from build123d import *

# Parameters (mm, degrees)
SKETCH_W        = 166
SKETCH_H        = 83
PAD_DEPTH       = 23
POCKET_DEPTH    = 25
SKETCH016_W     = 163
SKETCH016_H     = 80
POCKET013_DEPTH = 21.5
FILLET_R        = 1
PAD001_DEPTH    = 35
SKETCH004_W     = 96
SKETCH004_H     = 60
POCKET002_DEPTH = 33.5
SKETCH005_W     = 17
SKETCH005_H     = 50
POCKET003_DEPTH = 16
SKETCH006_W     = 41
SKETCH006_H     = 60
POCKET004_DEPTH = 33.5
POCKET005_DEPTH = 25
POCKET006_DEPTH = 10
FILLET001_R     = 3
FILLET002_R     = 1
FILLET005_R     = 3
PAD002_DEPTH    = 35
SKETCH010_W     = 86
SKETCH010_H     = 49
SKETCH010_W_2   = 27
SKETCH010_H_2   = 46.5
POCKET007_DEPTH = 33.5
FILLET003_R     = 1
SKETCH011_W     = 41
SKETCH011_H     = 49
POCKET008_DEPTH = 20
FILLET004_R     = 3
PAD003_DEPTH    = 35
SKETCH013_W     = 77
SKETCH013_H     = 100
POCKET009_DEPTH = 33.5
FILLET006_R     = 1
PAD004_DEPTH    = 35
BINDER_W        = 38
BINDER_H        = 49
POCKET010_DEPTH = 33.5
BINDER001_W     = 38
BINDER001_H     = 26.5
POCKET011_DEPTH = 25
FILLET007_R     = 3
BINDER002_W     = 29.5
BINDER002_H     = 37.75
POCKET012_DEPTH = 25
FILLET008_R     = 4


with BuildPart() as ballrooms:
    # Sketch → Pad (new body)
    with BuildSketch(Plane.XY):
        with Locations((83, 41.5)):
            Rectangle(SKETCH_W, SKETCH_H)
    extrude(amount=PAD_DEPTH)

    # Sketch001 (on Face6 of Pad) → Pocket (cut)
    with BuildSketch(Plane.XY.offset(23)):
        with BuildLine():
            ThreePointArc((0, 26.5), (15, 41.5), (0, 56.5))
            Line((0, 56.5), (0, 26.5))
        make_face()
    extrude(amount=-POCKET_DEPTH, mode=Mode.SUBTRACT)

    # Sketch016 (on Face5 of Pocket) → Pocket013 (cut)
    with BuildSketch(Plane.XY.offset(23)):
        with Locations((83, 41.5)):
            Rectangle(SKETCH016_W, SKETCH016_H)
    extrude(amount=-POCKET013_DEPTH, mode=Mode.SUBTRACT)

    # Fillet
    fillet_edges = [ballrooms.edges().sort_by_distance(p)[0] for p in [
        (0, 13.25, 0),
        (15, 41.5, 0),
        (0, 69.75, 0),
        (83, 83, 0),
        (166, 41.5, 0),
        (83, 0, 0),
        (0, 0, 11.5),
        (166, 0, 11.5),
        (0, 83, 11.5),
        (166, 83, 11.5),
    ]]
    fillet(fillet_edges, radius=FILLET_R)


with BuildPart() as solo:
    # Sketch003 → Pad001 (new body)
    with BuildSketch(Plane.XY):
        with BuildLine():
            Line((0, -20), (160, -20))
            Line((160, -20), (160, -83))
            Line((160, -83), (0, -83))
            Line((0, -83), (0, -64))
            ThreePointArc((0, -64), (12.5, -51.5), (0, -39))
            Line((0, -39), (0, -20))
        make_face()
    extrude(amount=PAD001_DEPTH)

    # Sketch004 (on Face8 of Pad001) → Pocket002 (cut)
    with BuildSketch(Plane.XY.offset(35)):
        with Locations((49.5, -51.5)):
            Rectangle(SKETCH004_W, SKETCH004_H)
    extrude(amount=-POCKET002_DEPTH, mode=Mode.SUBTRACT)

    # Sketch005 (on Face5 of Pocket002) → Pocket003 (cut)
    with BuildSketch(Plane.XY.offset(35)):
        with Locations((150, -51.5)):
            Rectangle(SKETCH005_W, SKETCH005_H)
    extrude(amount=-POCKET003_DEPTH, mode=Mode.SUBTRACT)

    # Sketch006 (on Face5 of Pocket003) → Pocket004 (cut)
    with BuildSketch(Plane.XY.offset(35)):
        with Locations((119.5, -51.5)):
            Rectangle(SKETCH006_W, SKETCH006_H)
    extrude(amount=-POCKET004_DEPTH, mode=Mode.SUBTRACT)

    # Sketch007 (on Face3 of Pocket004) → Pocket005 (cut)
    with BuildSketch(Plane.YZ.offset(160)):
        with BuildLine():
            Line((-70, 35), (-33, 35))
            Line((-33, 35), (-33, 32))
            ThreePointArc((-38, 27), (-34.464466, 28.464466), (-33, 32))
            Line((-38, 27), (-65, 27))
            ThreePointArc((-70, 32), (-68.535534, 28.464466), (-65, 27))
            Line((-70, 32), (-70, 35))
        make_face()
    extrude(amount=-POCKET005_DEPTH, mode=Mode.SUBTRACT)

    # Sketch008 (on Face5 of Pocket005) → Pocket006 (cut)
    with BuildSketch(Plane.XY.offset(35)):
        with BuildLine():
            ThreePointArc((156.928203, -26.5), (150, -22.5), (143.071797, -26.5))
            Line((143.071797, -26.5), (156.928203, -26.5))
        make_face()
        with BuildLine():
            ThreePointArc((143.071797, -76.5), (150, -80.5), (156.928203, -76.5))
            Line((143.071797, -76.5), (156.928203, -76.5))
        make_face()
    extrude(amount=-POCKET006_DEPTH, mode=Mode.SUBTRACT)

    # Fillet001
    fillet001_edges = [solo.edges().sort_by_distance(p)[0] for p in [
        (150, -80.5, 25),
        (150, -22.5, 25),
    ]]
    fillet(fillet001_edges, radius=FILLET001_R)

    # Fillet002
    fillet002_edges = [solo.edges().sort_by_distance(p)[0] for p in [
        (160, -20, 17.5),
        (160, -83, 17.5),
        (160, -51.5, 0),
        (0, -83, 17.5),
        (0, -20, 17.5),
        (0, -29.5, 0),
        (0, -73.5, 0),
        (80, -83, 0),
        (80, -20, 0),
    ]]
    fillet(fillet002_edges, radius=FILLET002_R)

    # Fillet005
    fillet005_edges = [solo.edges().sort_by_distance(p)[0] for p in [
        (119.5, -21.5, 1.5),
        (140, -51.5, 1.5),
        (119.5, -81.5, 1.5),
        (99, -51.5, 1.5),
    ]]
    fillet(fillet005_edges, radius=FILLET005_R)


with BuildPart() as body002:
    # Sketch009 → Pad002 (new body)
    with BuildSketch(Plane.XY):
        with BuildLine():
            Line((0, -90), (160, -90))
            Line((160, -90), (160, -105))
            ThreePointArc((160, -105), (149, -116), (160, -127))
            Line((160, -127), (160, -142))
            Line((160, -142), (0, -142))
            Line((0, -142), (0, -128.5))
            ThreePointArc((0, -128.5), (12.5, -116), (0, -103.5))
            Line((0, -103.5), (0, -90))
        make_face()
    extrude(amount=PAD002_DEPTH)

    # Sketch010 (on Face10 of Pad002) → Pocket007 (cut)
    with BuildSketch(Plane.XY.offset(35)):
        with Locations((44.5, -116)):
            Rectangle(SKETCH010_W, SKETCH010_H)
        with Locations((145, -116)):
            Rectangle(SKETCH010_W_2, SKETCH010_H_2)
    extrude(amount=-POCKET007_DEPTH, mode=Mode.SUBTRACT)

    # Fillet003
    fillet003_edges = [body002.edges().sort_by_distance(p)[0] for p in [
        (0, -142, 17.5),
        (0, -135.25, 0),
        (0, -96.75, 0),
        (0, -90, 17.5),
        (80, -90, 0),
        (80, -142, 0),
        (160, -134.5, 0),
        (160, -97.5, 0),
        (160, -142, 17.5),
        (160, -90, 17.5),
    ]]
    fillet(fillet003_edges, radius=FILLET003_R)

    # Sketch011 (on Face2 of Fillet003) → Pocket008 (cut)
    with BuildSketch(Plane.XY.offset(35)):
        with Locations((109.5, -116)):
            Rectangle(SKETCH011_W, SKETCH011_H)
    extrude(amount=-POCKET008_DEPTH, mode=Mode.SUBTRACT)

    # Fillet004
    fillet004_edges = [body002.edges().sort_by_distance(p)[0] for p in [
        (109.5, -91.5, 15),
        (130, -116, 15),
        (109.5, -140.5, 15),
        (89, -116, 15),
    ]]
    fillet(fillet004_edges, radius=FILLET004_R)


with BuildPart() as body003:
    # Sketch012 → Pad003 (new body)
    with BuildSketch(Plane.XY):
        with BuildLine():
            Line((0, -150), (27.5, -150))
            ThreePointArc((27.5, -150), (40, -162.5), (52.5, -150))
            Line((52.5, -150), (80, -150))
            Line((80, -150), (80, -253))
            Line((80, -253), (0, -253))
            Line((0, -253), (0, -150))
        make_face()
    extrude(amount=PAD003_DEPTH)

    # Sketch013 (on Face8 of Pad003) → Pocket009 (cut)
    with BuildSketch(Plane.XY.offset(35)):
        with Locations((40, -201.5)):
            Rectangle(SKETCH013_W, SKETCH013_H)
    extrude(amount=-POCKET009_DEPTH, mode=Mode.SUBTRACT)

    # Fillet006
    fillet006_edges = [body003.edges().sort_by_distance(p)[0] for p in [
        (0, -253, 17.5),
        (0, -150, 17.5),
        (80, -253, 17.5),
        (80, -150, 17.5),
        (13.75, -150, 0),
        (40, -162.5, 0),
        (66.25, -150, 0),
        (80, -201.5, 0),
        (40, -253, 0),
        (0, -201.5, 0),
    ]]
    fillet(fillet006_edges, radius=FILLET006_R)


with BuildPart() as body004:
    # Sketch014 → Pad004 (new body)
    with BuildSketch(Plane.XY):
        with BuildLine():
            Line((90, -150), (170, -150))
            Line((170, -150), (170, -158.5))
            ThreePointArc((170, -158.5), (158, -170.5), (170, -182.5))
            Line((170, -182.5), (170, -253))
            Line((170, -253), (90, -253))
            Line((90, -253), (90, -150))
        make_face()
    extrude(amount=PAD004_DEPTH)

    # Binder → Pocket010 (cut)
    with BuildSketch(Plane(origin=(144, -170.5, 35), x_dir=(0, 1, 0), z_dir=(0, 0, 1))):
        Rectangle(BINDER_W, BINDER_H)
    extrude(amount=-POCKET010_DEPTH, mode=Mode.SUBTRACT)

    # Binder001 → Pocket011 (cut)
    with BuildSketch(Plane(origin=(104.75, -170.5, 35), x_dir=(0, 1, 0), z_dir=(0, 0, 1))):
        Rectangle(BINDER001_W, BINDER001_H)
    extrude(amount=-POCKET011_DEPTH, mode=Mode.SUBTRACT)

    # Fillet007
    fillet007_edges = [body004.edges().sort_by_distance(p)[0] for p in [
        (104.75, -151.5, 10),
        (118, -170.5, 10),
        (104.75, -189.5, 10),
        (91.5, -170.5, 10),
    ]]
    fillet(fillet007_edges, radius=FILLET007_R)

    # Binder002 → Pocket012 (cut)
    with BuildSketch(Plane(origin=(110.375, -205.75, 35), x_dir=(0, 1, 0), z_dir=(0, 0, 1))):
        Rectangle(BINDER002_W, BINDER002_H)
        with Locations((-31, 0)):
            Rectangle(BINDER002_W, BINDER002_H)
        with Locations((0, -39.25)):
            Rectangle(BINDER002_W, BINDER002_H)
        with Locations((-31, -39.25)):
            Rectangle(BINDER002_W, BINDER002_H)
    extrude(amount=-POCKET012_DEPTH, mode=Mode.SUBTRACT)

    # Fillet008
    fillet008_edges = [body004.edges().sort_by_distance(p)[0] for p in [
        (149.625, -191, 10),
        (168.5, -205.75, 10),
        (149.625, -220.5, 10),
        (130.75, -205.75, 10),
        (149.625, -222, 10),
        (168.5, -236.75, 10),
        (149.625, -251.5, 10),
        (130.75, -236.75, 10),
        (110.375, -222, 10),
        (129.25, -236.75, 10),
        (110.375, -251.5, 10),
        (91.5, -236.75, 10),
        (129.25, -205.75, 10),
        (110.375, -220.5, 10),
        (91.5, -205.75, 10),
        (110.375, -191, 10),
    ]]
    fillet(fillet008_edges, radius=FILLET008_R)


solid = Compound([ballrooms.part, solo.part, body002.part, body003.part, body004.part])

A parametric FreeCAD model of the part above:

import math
import FreeCAD as App
import Part
import Sketcher


def edges_at(feature, points):
    """Names of the edges that pass closest to the given points."""
    edges = feature.Shape.Edges
    near = lambda p: min(range(len(edges)), key=lambda i: edges[i].distToShape(Part.Vertex(*p))[0])
    return sorted({f"Edge{near(p) + 1}" for p in points})


def add_polygon(sketch, points):
    """Adds a closed chain of lines whose ends are joined by coincident constraints."""
    first, n = sketch.GeometryCount, len(points)
    for a, b in zip(points, points[1:] + points[:1]):
        sketch.addGeometry(Part.LineSegment(App.Vector(*a, 0), App.Vector(*b, 0)), False)
    for i in range(n):
        sketch.addConstraint(Sketcher.Constraint("Coincident", first + i, 2, first + (i + 1) % n, 1))

doc = App.newDocument("Part")
body = doc.addObject("PartDesign::Body", "Body")

sketch1 = doc.addObject("Sketcher::SketchObject", "Sketch")
body.addObject(sketch1)
sketch1.AttachmentSupport = (doc.XY_Plane, [""])
sketch1.MapMode = "FlatFace"
add_polygon(sketch1, [(0, 83), (0, 0), (166, 0), (166, 83)])
sketch1.addConstraint([
    Sketcher.Constraint("Vertical", 0),
    Sketcher.Constraint("Horizontal", 1),
    Sketcher.Constraint("Vertical", 2),
    Sketcher.Constraint("Horizontal", 3),
    Sketcher.Constraint("Coincident", 0, 2, -1, 1),
    Sketcher.Constraint("DistanceX", 1, 1, 1, 2, 166.0),
    Sketcher.Constraint("DistanceY", 0, 2, 0, 1, 83.0),
])
pad1 = doc.addObject("PartDesign::Pad", "Pad")
body.addObject(pad1)
pad1.Profile = sketch1
pad1.Length = 23

sketch2 = doc.addObject("Sketcher::SketchObject", "Sketch001")
body.addObject(sketch2)
sketch2.AttachmentSupport = (doc.XY_Plane, [""])
sketch2.MapMode = "FlatFace"
sketch2.AttachmentOffset = App.Placement(App.Vector(0, 0, 23), App.Rotation())
sketch2.addGeometry([
    Part.ArcOfCircle(Part.Circle(App.Vector(0, 41.5, 0), App.Vector(0, 0, 1), 15), math.radians(-90), math.radians(90)),
    Part.LineSegment(App.Vector(0, 56.5, 0), App.Vector(0, 26.5, 0)),
], False)
sketch2.addConstraint([
    Sketcher.Constraint("Coincident", 0, 1, 1, 2),
    Sketcher.Constraint("Coincident", 1, 1, 0, 2),
    Sketcher.Constraint("Vertical", 1),
    Sketcher.Constraint("PointOnObject", 0, 3, -2),
    Sketcher.Constraint("PointOnObject", 0, 1, -2),
    Sketcher.Constraint("Radius", 0, 15.0),
    Sketcher.Constraint("DistanceY", -1, 1, 0, 3, 41.5),
])
pocket1 = doc.addObject("PartDesign::Pocket", "Pocket")
body.addObject(pocket1)
pocket1.Profile = sketch2
pocket1.Length = 25

sketch3 = doc.addObject("Sketcher::SketchObject", "Sketch002")
body.addObject(sketch3)
sketch3.AttachmentSupport = (doc.XY_Plane, [""])
sketch3.MapMode = "FlatFace"
sketch3.AttachmentOffset = App.Placement(App.Vector(0, 0, 23), App.Rotation())
add_polygon(sketch3, [(1.5, 81.5), (1.5, 1.5), (164.5, 1.5), (164.5, 81.5)])
sketch3.addConstraint([
    Sketcher.Constraint("Vertical", 0),
    Sketcher.Constraint("Horizontal", 1),
    Sketcher.Constraint("Vertical", 2),
    Sketcher.Constraint("Horizontal", 3),
    Sketcher.Constraint("DistanceX", 1, 1, 1, 2, 163.0),
    Sketcher.Constraint("DistanceY", 0, 2, 0, 1, 80.0),
    Sketcher.Constraint("DistanceX", -1, 1, 0, 2, 1.5),
    Sketcher.Constraint("DistanceY", -1, 1, 0, 2, 1.5),
])
pocket2 = doc.addObject("PartDesign::Pocket", "Pocket001")
body.addObject(pocket2)
pocket2.Profile = sketch3
pocket2.Length = 21.5
doc.recompute()

fillet = doc.addObject("PartDesign::Fillet", "Fillet")
body.addObject(fillet)
fillet.Base = (pocket2, edges_at(pocket2, [
    (0, 13.25, 0),
    (15, 41.5, 0),
    (0, 69.75, 0),
    (83, 83, 0),
    (166, 41.5, 0),
    (83, 0, 0),
    (0, 0, 11.5),
    (166, 0, 11.5),
    (0, 83, 11.5),
    (166, 83, 11.5),
]))
fillet.Radius = 1
body2 = doc.addObject("PartDesign::Body", "Body001")

sketch4 = doc.addObject("Sketcher::SketchObject", "Sketch003")
body2.addObject(sketch4)
sketch4.AttachmentSupport = (doc.getObject("XY_Plane001"), [""])
sketch4.MapMode = "FlatFace"
sketch4.addGeometry([
    Part.LineSegment(App.Vector(160, -20, 0), App.Vector(0, -20, 0)),
    Part.LineSegment(App.Vector(0, -20, 0), App.Vector(0, -39, 0)),
    Part.ArcOfCircle(Part.Circle(App.Vector(0, -51.5, 0), App.Vector(0, 0, 1), 12.5), math.radians(-90), math.radians(90)),
    Part.LineSegment(App.Vector(0, -64, 0), App.Vector(0, -83, 0)),
    Part.LineSegment(App.Vector(0, -83, 0), App.Vector(160, -83, 0)),
    Part.LineSegment(App.Vector(160, -83, 0), App.Vector(160, -20, 0)),
], False)
sketch4.addConstraint([
    Sketcher.Constraint("Coincident", 0, 2, 1, 1),
    Sketcher.Constraint("Coincident", 1, 2, 2, 2),
    Sketcher.Constraint("Coincident", 2, 1, 3, 1),
    Sketcher.Constraint("Coincident", 3, 2, 4, 1),
    Sketcher.Constraint("Coincident", 4, 2, 5, 1),
    Sketcher.Constraint("Coincident", 5, 2, 0, 1),
    Sketcher.Constraint("Horizontal", 0),
    Sketcher.Constraint("Vertical", 1),
    Sketcher.Constraint("Vertical", 3),
    Sketcher.Constraint("Horizontal", 4),
    Sketcher.Constraint("Vertical", 5),
    Sketcher.Constraint("PointOnObject", 2, 3, -2),
    Sketcher.Constraint("PointOnObject", 0, 2, -2),
    Sketcher.Constraint("PointOnObject", 2, 1, -2),
    Sketcher.Constraint("Equal", 1, 3),
    Sketcher.Constraint("Radius", 2, 12.5),
    Sketcher.Constraint("DistanceX", 0, 2, 0, 1, 160.0),
    Sketcher.Constraint("DistanceY", 1, 2, 1, 1, 19.0),
    Sketcher.Constraint("DistanceY", 0, 2, -1, 1, 20.0),
])
pad2 = doc.addObject("PartDesign::Pad", "Pad001")
body2.addObject(pad2)
pad2.Profile = sketch4
pad2.Length = 35

sketch5 = doc.addObject("Sketcher::SketchObject", "Sketch004")
body2.addObject(sketch5)
sketch5.AttachmentSupport = (doc.getObject("XY_Plane001"), [""])
sketch5.MapMode = "FlatFace"
sketch5.AttachmentOffset = App.Placement(App.Vector(0, 0, 35), App.Rotation())
add_polygon(sketch5, [(1.5, -21.5), (1.5, -81.5), (97.5, -81.5), (97.5, -21.5)])
sketch5.addConstraint([
    Sketcher.Constraint("Vertical", 0),
    Sketcher.Constraint("Horizontal", 1),
    Sketcher.Constraint("Vertical", 2),
    Sketcher.Constraint("Horizontal", 3),
    Sketcher.Constraint("DistanceX", 1, 1, 1, 2, 96.0),
    Sketcher.Constraint("DistanceY", 0, 2, 0, 1, 60.0),
    Sketcher.Constraint("DistanceX", -1, 1, 0, 2, 1.5),
    Sketcher.Constraint("DistanceY", 0, 2, -1, 1, 81.5),
])
pocket3 = doc.addObject("PartDesign::Pocket", "Pocket002")
body2.addObject(pocket3)
pocket3.Profile = sketch5
pocket3.Length = 33.5

sketch6 = doc.addObject("Sketcher::SketchObject", "Sketch005")
body2.addObject(sketch6)
sketch6.AttachmentSupport = (doc.getObject("XY_Plane001"), [""])
sketch6.MapMode = "FlatFace"
sketch6.AttachmentOffset = App.Placement(App.Vector(0, 0, 35), App.Rotation())
add_polygon(sketch6, [(141.5, -26.5), (141.5, -76.5), (158.5, -76.5), (158.5, -26.5)])
sketch6.addConstraint([
    Sketcher.Constraint("Vertical", 0),
    Sketcher.Constraint("Horizontal", 1),
    Sketcher.Constraint("Vertical", 2),
    Sketcher.Constraint("Horizontal", 3),
    Sketcher.Constraint("DistanceX", 1, 1, 1, 2, 17.0),
    Sketcher.Constraint("DistanceY", 0, 2, 0, 1, 50.0),
    Sketcher.Constraint("DistanceX", -1, 1, 0, 2, 141.5),
    Sketcher.Constraint("DistanceY", 0, 2, -1, 1, 76.5),
])
pocket4 = doc.addObject("PartDesign::Pocket", "Pocket003")
body2.addObject(pocket4)
pocket4.Profile = sketch6
pocket4.Length = 16

sketch7 = doc.addObject("Sketcher::SketchObject", "Sketch006")
body2.addObject(sketch7)
sketch7.AttachmentSupport = (doc.getObject("XY_Plane001"), [""])
sketch7.MapMode = "FlatFace"
sketch7.AttachmentOffset = App.Placement(App.Vector(0, 0, 35), App.Rotation())
add_polygon(sketch7, [(99, -21.5), (99, -81.5), (140, -81.5), (140, -21.5)])
sketch7.addConstraint([
    Sketcher.Constraint("Vertical", 0),
    Sketcher.Constraint("Horizontal", 1),
    Sketcher.Constraint("Vertical", 2),
    Sketcher.Constraint("Horizontal", 3),
    Sketcher.Constraint("DistanceX", 1, 1, 1, 2, 41.0),
    Sketcher.Constraint("DistanceY", 0, 2, 0, 1, 60.0),
    Sketcher.Constraint("DistanceX", -1, 1, 0, 2, 99.0),
    Sketcher.Constraint("DistanceY", 0, 2, -1, 1, 81.5),
])
pocket5 = doc.addObject("PartDesign::Pocket", "Pocket004")
body2.addObject(pocket5)
pocket5.Profile = sketch7
pocket5.Length = 33.5

sketch8 = doc.addObject("Sketcher::SketchObject", "Sketch007")
body2.addObject(sketch8)
sketch8.AttachmentSupport = (doc.getObject("YZ_Plane001"), [""])
sketch8.MapMode = "FlatFace"
sketch8.AttachmentOffset = App.Placement(App.Vector(0, 0, 160), App.Rotation())
sketch8.addGeometry([
    Part.LineSegment(App.Vector(-33, 35, 0), App.Vector(-70, 35, 0)),
    Part.LineSegment(App.Vector(-70, 35, 0), App.Vector(-70, 32, 0)),
    Part.ArcOfCircle(Part.Circle(App.Vector(-65, 32, 0), App.Vector(0, 0, 1), 5), math.radians(179.999996), math.radians(270.000004)),
    Part.LineSegment(App.Vector(-65, 27, 0), App.Vector(-38, 27, 0)),
    Part.ArcOfCircle(Part.Circle(App.Vector(-38, 32, 0), App.Vector(0, 0, 1), 5), math.radians(-90.000004), math.radians(0.000004)),
    Part.LineSegment(App.Vector(-33, 32, 0), App.Vector(-33, 35, 0)),
], False)
sketch8.addConstraint([
    Sketcher.Constraint("Coincident", 0, 2, 1, 1),
    Sketcher.Constraint("Tangent", 1, 2, 2, 1),
    Sketcher.Constraint("Tangent", 2, 2, 3, 1),
    Sketcher.Constraint("Tangent", 3, 2, 4, 1),
    Sketcher.Constraint("Tangent", 4, 2, 5, 1),
    Sketcher.Constraint("Coincident", 5, 2, 0, 1),
    Sketcher.Constraint("Horizontal", 0),
    Sketcher.Constraint("Vertical", 1),
    Sketcher.Constraint("Horizontal", 3),
    Sketcher.Constraint("Vertical", 5),
    Sketcher.Constraint("Equal", 2, 4),
    Sketcher.Constraint("Radius", 2, 5.0),
    Sketcher.Constraint("DistanceX", 0, 2, 0, 1, 37.0),
    Sketcher.Constraint("DistanceY", 1, 2, 1, 1, 3.0),
    Sketcher.Constraint("DistanceX", 2, 3, -1, 1, 65.0),
    Sketcher.Constraint("DistanceY", -1, 1, 2, 3, 32.0),
])
pocket6 = doc.addObject("PartDesign::Pocket", "Pocket005")
body2.addObject(pocket6)
pocket6.Profile = sketch8
pocket6.Length = 25

sketch9 = doc.addObject("Sketcher::SketchObject", "Sketch008")
body2.addObject(sketch9)
sketch9.AttachmentSupport = (doc.getObject("XY_Plane001"), [""])
sketch9.MapMode = "FlatFace"
sketch9.AttachmentOffset = App.Placement(App.Vector(0, 0, 35), App.Rotation())
sketch9.addGeometry([
    Part.ArcOfCircle(Part.Circle(App.Vector(150, -30.5, 0), App.Vector(0, 0, 1), 8), math.radians(29.999998), math.radians(150.000002)),
    Part.LineSegment(App.Vector(143.071797, -26.5, 0), App.Vector(156.928203, -26.5, 0)),
    Part.ArcOfCircle(Part.Circle(App.Vector(150, -72.5, 0), App.Vector(0, 0, 1), 8), math.radians(-150.000002), math.radians(-29.999998)),
    Part.LineSegment(App.Vector(156.928203, -76.5, 0), App.Vector(143.071797, -76.5, 0)),
], False)
sketch9.addConstraint([
    Sketcher.Constraint("Coincident", 0, 1, 1, 2),
    Sketcher.Constraint("Coincident", 1, 1, 0, 2),
    Sketcher.Constraint("Coincident", 2, 1, 3, 2),
    Sketcher.Constraint("Coincident", 3, 1, 2, 2),
    Sketcher.Constraint("Horizontal", 1),
    Sketcher.Constraint("Horizontal", 3),
    Sketcher.Constraint("Equal", 0, 2),
    Sketcher.Constraint("Vertical", 0, 3, 2, 3),
    Sketcher.Constraint("Vertical", 1, 1, 2, 1),
    Sketcher.Constraint("Radius", 0, 8.0),
    Sketcher.Constraint("DistanceX", -1, 1, 0, 3, 150.0),
    Sketcher.Constraint("DistanceY", 2, 3, 0, 3, 42.000001),
    Sketcher.Constraint("DistanceY", 0, 3, 0, 1, 4.0),
    Sketcher.Constraint("DistanceY", 0, 3, -1, 1, 30.5),
])
pocket7 = doc.addObject("PartDesign::Pocket", "Pocket006")
body2.addObject(pocket7)
pocket7.Profile = sketch9
pocket7.Length = 10
doc.recompute()

fillet2 = doc.addObject("PartDesign::Fillet", "Fillet001")
body2.addObject(fillet2)
fillet2.Base = (pocket7, edges_at(pocket7, [(150, -80.5, 25), (150, -22.5, 25)]))
fillet2.Radius = 3
doc.recompute()

fillet3 = doc.addObject("PartDesign::Fillet", "Fillet002")
body2.addObject(fillet3)
fillet3.Base = (fillet2, edges_at(fillet2, [
    (160, -20, 17.5),
    (160, -83, 17.5),
    (160, -51.5, 0),
    (0, -83, 17.5),
    (0, -20, 17.5),
    (0, -29.5, 0),
    (0, -73.5, 0),
    (80, -83, 0),
    (80, -20, 0),
]))
fillet3.Radius = 1
doc.recompute()

fillet4 = doc.addObject("PartDesign::Fillet", "Fillet003")
body2.addObject(fillet4)
fillet4.Base = (fillet3, edges_at(fillet3, [
    (119.5, -21.5, 1.5),
    (140, -51.5, 1.5),
    (119.5, -81.5, 1.5),
    (99, -51.5, 1.5),
]))
fillet4.Radius = 3
body3 = doc.addObject("PartDesign::Body", "Body002")

sketch10 = doc.addObject("Sketcher::SketchObject", "Sketch009")
body3.addObject(sketch10)
sketch10.AttachmentSupport = (doc.getObject("XY_Plane002"), [""])
sketch10.MapMode = "FlatFace"
sketch10.addGeometry([
    Part.LineSegment(App.Vector(160, -90, 0), App.Vector(0, -90, 0)),
    Part.LineSegment(App.Vector(0, -90, 0), App.Vector(0, -103.5, 0)),
    Part.ArcOfCircle(Part.Circle(App.Vector(0, -116, 0), App.Vector(0, 0, 1), 12.5), math.radians(-90), math.radians(90)),
    Part.LineSegment(App.Vector(0, -128.5, 0), App.Vector(0, -142, 0)),
    Part.LineSegment(App.Vector(0, -142, 0), App.Vector(160, -142, 0)),
    Part.LineSegment(App.Vector(160, -142, 0), App.Vector(160, -127, 0)),
    Part.ArcOfCircle(Part.Circle(App.Vector(160, -116, 0), App.Vector(0, 0, 1), 11), math.radians(90), math.radians(270)),
    Part.LineSegment(App.Vector(160, -105, 0), App.Vector(160, -90, 0)),
], False)
sketch10.addConstraint([
    Sketcher.Constraint("Coincident", 0, 2, 1, 1),
    Sketcher.Constraint("Coincident", 1, 2, 2, 2),
    Sketcher.Constraint("Coincident", 2, 1, 3, 1),
    Sketcher.Constraint("Coincident", 3, 2, 4, 1),
    Sketcher.Constraint("Coincident", 4, 2, 5, 1),
    Sketcher.Constraint("Coincident", 5, 2, 6, 2),
    Sketcher.Constraint("Coincident", 6, 1, 7, 1),
    Sketcher.Constraint("Coincident", 7, 2, 0, 1),
    Sketcher.Constraint("Horizontal", 0),
    Sketcher.Constraint("Vertical", 1),
    Sketcher.Constraint("Vertical", 3),
    Sketcher.Constraint("Horizontal", 4),
    Sketcher.Constraint("Vertical", 5),
    Sketcher.Constraint("Vertical", 7),
    Sketcher.Constraint("PointOnObject", 2, 3, -2),
    Sketcher.Constraint("PointOnObject", 0, 2, -2),
    Sketcher.Constraint("PointOnObject", 2, 1, -2),
    Sketcher.Constraint("Horizontal", 2, 3, 6, 3),
    Sketcher.Constraint("Vertical", 6, 3, 4, 2),
    Sketcher.Constraint("Vertical", 5, 2, 6, 1),
    Sketcher.Constraint("Equal", 1, 3),
    Sketcher.Constraint("Radius", 6, 11.0),
    Sketcher.Constraint("Radius", 2, 12.5),
    Sketcher.Constraint("DistanceX", 0, 2, 0, 1, 160.0),
    Sketcher.Constraint("DistanceY", 5, 1, 5, 2, 15.0),
    Sketcher.Constraint("DistanceY", 2, 3, -1, 1, 116.0),
])
pad3 = doc.addObject("PartDesign::Pad", "Pad002")
body3.addObject(pad3)
pad3.Profile = sketch10
pad3.Length = 35

sketch11 = doc.addObject("Sketcher::SketchObject", "Sketch010")
body3.addObject(sketch11)
sketch11.AttachmentSupport = (doc.getObject("XY_Plane002"), [""])
sketch11.MapMode = "FlatFace"
sketch11.AttachmentOffset = App.Placement(App.Vector(0, 0, 35), App.Rotation())
add_polygon(sketch11, [(1.5, -91.5), (1.5, -140.5), (87.5, -140.5), (87.5, -91.5)])
add_polygon(sketch11, [(131.5, -92.75), (131.5, -139.25), (158.5, -139.25), (158.5, -92.75)])
sketch11.addConstraint([
    Sketcher.Constraint("Vertical", 0),
    Sketcher.Constraint("Horizontal", 1),
    Sketcher.Constraint("Vertical", 2),
    Sketcher.Constraint("Horizontal", 3),
    Sketcher.Constraint("Vertical", 4),
    Sketcher.Constraint("Horizontal", 5),
    Sketcher.Constraint("Vertical", 6),
    Sketcher.Constraint("Horizontal", 7),
    Sketcher.Constraint("DistanceX", 1, 1, 1, 2, 86.0),
    Sketcher.Constraint("DistanceX", 5, 1, 5, 2, 27.0),
    Sketcher.Constraint("DistanceY", 0, 2, 0, 1, 49.0),
    Sketcher.Constraint("DistanceY", 4, 2, 4, 1, 46.5),
    Sketcher.Constraint("DistanceX", 1, 2, 4, 2, 44.0),
    Sketcher.Constraint("DistanceX", -1, 1, 0, 2, 1.5),
    Sketcher.Constraint("DistanceY", 0, 2, -1, 1, 140.5),
    Sketcher.Constraint("DistanceY", 4, 2, -1, 1, 139.25),
])
pocket8 = doc.addObject("PartDesign::Pocket", "Pocket007")
body3.addObject(pocket8)
pocket8.Profile = sketch11
pocket8.Length = 33.5
doc.recompute()

fillet5 = doc.addObject("PartDesign::Fillet", "Fillet004")
body3.addObject(fillet5)
fillet5.Base = (pocket8, edges_at(pocket8, [
    (0, -142, 17.5),
    (0, -135.25, 0),
    (0, -96.75, 0),
    (0, -90, 17.5),
    (80, -90, 0),
    (80, -142, 0),
    (160, -134.5, 0),
    (160, -97.5, 0),
    (160, -142, 17.5),
    (160, -90, 17.5),
]))
fillet5.Radius = 1

sketch12 = doc.addObject("Sketcher::SketchObject", "Sketch011")
body3.addObject(sketch12)
sketch12.AttachmentSupport = (doc.getObject("XY_Plane002"), [""])
sketch12.MapMode = "FlatFace"
sketch12.AttachmentOffset = App.Placement(App.Vector(0, 0, 35), App.Rotation())
add_polygon(sketch12, [(89, -91.5), (89, -140.5), (130, -140.5), (130, -91.5)])
sketch12.addConstraint([
    Sketcher.Constraint("Vertical", 0),
    Sketcher.Constraint("Horizontal", 1),
    Sketcher.Constraint("Vertical", 2),
    Sketcher.Constraint("Horizontal", 3),
    Sketcher.Constraint("DistanceX", 1, 1, 1, 2, 41.0),
    Sketcher.Constraint("DistanceY", 0, 2, 0, 1, 49.0),
    Sketcher.Constraint("DistanceX", -1, 1, 0, 2, 89.0),
    Sketcher.Constraint("DistanceY", 0, 2, -1, 1, 140.5),
])
pocket9 = doc.addObject("PartDesign::Pocket", "Pocket008")
body3.addObject(pocket9)
pocket9.Profile = sketch12
pocket9.Length = 20
doc.recompute()

fillet6 = doc.addObject("PartDesign::Fillet", "Fillet005")
body3.addObject(fillet6)
fillet6.Base = (pocket9, edges_at(pocket9, [
    (109.5, -91.5, 15),
    (130, -116, 15),
    (109.5, -140.5, 15),
    (89, -116, 15),
]))
fillet6.Radius = 3
body4 = doc.addObject("PartDesign::Body", "Body003")

sketch13 = doc.addObject("Sketcher::SketchObject", "Sketch012")
body4.addObject(sketch13)
sketch13.AttachmentSupport = (doc.getObject("XY_Plane003"), [""])
sketch13.MapMode = "FlatFace"
sketch13.addGeometry([
    Part.LineSegment(App.Vector(27.5, -150, 0), App.Vector(0, -150, 0)),
    Part.LineSegment(App.Vector(0, -150, 0), App.Vector(0, -253, 0)),
    Part.LineSegment(App.Vector(0, -253, 0), App.Vector(80, -253, 0)),
    Part.LineSegment(App.Vector(80, -253, 0), App.Vector(80, -150, 0)),
    Part.LineSegment(App.Vector(80, -150, 0), App.Vector(52.5, -150, 0)),
    Part.ArcOfCircle(Part.Circle(App.Vector(40, -150, 0), App.Vector(0, 0, 1), 12.5), math.radians(180), math.radians(360)),
], False)
sketch13.addConstraint([
    Sketcher.Constraint("Coincident", 0, 2, 1, 1),
    Sketcher.Constraint("Coincident", 1, 2, 2, 1),
    Sketcher.Constraint("Coincident", 2, 2, 3, 1),
    Sketcher.Constraint("Coincident", 3, 2, 4, 1),
    Sketcher.Constraint("Coincident", 4, 2, 5, 2),
    Sketcher.Constraint("Coincident", 5, 1, 0, 1),
    Sketcher.Constraint("Horizontal", 0),
    Sketcher.Constraint("Vertical", 1),
    Sketcher.Constraint("Horizontal", 2),
    Sketcher.Constraint("Vertical", 3),
    Sketcher.Constraint("Horizontal", 4),
    Sketcher.Constraint("PointOnObject", 0, 2, -2),
    Sketcher.Constraint("Horizontal", 5, 3, 0, 2),
    Sketcher.Constraint("Horizontal", 0, 2, 3, 2),
    Sketcher.Constraint("Equal", 0, 4),
    Sketcher.Constraint("Radius", 5, 12.5),
    Sketcher.Constraint("DistanceX", 2, 1, 2, 2, 80.0),
    Sketcher.Constraint("DistanceY", 1, 2, 1, 1, 103.0),
    Sketcher.Constraint("DistanceY", 5, 3, -1, 1, 150.0),
])
pad4 = doc.addObject("PartDesign::Pad", "Pad003")
body4.addObject(pad4)
pad4.Profile = sketch13
pad4.Length = 35

sketch14 = doc.addObject("Sketcher::SketchObject", "Sketch013")
body4.addObject(sketch14)
sketch14.AttachmentSupport = (doc.getObject("XY_Plane003"), [""])
sketch14.MapMode = "FlatFace"
sketch14.AttachmentOffset = App.Placement(App.Vector(0, 0, 35), App.Rotation())
add_polygon(sketch14, [(1.5, -151.5), (1.5, -251.5), (78.5, -251.5), (78.5, -151.5)])
sketch14.addConstraint([
    Sketcher.Constraint("Vertical", 0),
    Sketcher.Constraint("Horizontal", 1),
    Sketcher.Constraint("Vertical", 2),
    Sketcher.Constraint("Horizontal", 3),
    Sketcher.Constraint("DistanceX", 1, 1, 1, 2, 77.0),
    Sketcher.Constraint("DistanceY", 0, 2, 0, 1, 100.0),
    Sketcher.Constraint("DistanceX", -1, 1, 0, 2, 1.5),
    Sketcher.Constraint("DistanceY", 0, 2, -1, 1, 251.5),
])
pocket10 = doc.addObject("PartDesign::Pocket", "Pocket009")
body4.addObject(pocket10)
pocket10.Profile = sketch14
pocket10.Length = 33.5
doc.recompute()

fillet7 = doc.addObject("PartDesign::Fillet", "Fillet006")
body4.addObject(fillet7)
fillet7.Base = (pocket10, edges_at(pocket10, [
    (0, -253, 17.5),
    (0, -150, 17.5),
    (80, -253, 17.5),
    (80, -150, 17.5),
    (13.75, -150, 0),
    (40, -162.5, 0),
    (66.25, -150, 0),
    (80, -201.5, 0),
    (40, -253, 0),
    (0, -201.5, 0),
]))
fillet7.Radius = 1
body5 = doc.addObject("PartDesign::Body", "Body004")

sketch15 = doc.addObject("Sketcher::SketchObject", "Sketch014")
body5.addObject(sketch15)
sketch15.AttachmentSupport = (doc.getObject("XY_Plane004"), [""])
sketch15.MapMode = "FlatFace"
sketch15.addGeometry([
    Part.LineSegment(App.Vector(170, -150, 0), App.Vector(90, -150, 0)),
    Part.LineSegment(App.Vector(90, -150, 0), App.Vector(90, -253, 0)),
    Part.LineSegment(App.Vector(90, -253, 0), App.Vector(170, -253, 0)),
    Part.LineSegment(App.Vector(170, -253, 0), App.Vector(170, -182.5, 0)),
    Part.ArcOfCircle(Part.Circle(App.Vector(170, -170.5, 0), App.Vector(0, 0, 1), 12), math.radians(90), math.radians(270)),
    Part.LineSegment(App.Vector(170, -158.5, 0), App.Vector(170, -150, 0)),
], False)
sketch15.addConstraint([
    Sketcher.Constraint("Coincident", 0, 2, 1, 1),
    Sketcher.Constraint("Coincident", 1, 2, 2, 1),
    Sketcher.Constraint("Coincident", 2, 2, 3, 1),
    Sketcher.Constraint("Coincident", 3, 2, 4, 2),
    Sketcher.Constraint("Coincident", 4, 1, 5, 1),
    Sketcher.Constraint("Coincident", 5, 2, 0, 1),
    Sketcher.Constraint("Horizontal", 0),
    Sketcher.Constraint("Vertical", 1),
    Sketcher.Constraint("Horizontal", 2),
    Sketcher.Constraint("Vertical", 3),
    Sketcher.Constraint("Vertical", 5),
    Sketcher.Constraint("Vertical", 4, 3, 2, 2),
    Sketcher.Constraint("Vertical", 3, 2, 4, 1),
    Sketcher.Constraint("Radius", 4, 12.0),
    Sketcher.Constraint("DistanceX", 0, 2, 0, 1, 80.0),
    Sketcher.Constraint("DistanceY", 1, 2, 1, 1, 103.0),
    Sketcher.Constraint("DistanceY", 3, 1, 3, 2, 70.5),
    Sketcher.Constraint("DistanceX", -1, 1, 4, 3, 170.0),
    Sketcher.Constraint("DistanceY", 0, 2, -1, 1, 150.0),
])
pad5 = doc.addObject("PartDesign::Pad", "Pad004")
body5.addObject(pad5)
pad5.Profile = sketch15
pad5.Length = 35

sketch16 = doc.addObject("Sketcher::SketchObject", "Sketch015")
body5.addObject(sketch16)
sketch16.AttachmentSupport = (doc.getObject("XY_Plane004"), [""])
sketch16.MapMode = "FlatFace"
sketch16.AttachmentOffset = App.Placement(App.Vector(0, 0, 35), App.Rotation())
add_polygon(sketch16, [(119.5, -189.5), (168.5, -189.5), (168.5, -151.5), (119.5, -151.5)])
sketch16.addConstraint([
    Sketcher.Constraint("Horizontal", 0),
    Sketcher.Constraint("Vertical", 1),
    Sketcher.Constraint("Horizontal", 2),
    Sketcher.Constraint("Vertical", 3),
    Sketcher.Constraint("DistanceX", 0, 1, 0, 2, 49.0),
    Sketcher.Constraint("DistanceY", 1, 1, 1, 2, 38.0),
    Sketcher.Constraint("DistanceX", -1, 1, 0, 2, 168.5),
    Sketcher.Constraint("DistanceY", 0, 2, -1, 1, 189.5),
])
pocket11 = doc.addObject("PartDesign::Pocket", "Pocket010")
body5.addObject(pocket11)
pocket11.Profile = sketch16
pocket11.Length = 33.5

sketch17 = doc.addObject("Sketcher::SketchObject", "Sketch016")
body5.addObject(sketch17)
sketch17.AttachmentSupport = (doc.getObject("XY_Plane004"), [""])
sketch17.MapMode = "FlatFace"
sketch17.AttachmentOffset = App.Placement(App.Vector(0, 0, 35), App.Rotation())
add_polygon(sketch17, [(91.5, -189.5), (118, -189.5), (118, -151.5), (91.5, -151.5)])
sketch17.addConstraint([
    Sketcher.Constraint("Horizontal", 0),
    Sketcher.Constraint("Vertical", 1),
    Sketcher.Constraint("Horizontal", 2),
    Sketcher.Constraint("Vertical", 3),
    Sketcher.Constraint("DistanceY", 1, 1, 1, 2, 38.0),
    Sketcher.Constraint("DistanceX", 0, 1, 0, 2, 26.5),
    Sketcher.Constraint("DistanceX", -1, 1, 0, 2, 118.0),
    Sketcher.Constraint("DistanceY", 0, 2, -1, 1, 189.5),
])
pocket12 = doc.addObject("PartDesign::Pocket", "Pocket011")
body5.addObject(pocket12)
pocket12.Profile = sketch17
pocket12.Length = 25
doc.recompute()

fillet8 = doc.addObject("PartDesign::Fillet", "Fillet007")
body5.addObject(fillet8)
fillet8.Base = (pocket12, edges_at(pocket12, [
    (104.75, -151.5, 10),
    (118, -170.5, 10),
    (104.75, -189.5, 10),
    (91.5, -170.5, 10),
]))
fillet8.Radius = 3

sketch18 = doc.addObject("Sketcher::SketchObject", "Sketch017")
body5.addObject(sketch18)
sketch18.AttachmentSupport = (doc.getObject("XY_Plane004"), [""])
sketch18.MapMode = "FlatFace"
sketch18.AttachmentOffset = App.Placement(App.Vector(0, 0, 35), App.Rotation())
add_polygon(sketch18, [(91.5, -220.5), (129.25, -220.5), (129.25, -191), (91.5, -191)])
add_polygon(sketch18, [(91.5, -251.5), (129.25, -251.5), (129.25, -222), (91.5, -222)])
add_polygon(sketch18, [(130.75, -220.5), (168.5, -220.5), (168.5, -191), (130.75, -191)])
add_polygon(sketch18, [(130.75, -251.5), (168.5, -251.5), (168.5, -222), (130.75, -222)])
sketch18.addConstraint([
    Sketcher.Constraint("Horizontal", 0),
    Sketcher.Constraint("Vertical", 1),
    Sketcher.Constraint("Horizontal", 2),
    Sketcher.Constraint("Vertical", 3),
    Sketcher.Constraint("Horizontal", 4),
    Sketcher.Constraint("Vertical", 5),
    Sketcher.Constraint("Horizontal", 6),
    Sketcher.Constraint("Vertical", 7),
    Sketcher.Constraint("Horizontal", 8),
    Sketcher.Constraint("Vertical", 9),
    Sketcher.Constraint("Horizontal", 10),
    Sketcher.Constraint("Vertical", 11),
    Sketcher.Constraint("Horizontal", 12),
    Sketcher.Constraint("Vertical", 13),
    Sketcher.Constraint("Horizontal", 14),
    Sketcher.Constraint("Vertical", 15),
    Sketcher.Constraint("Horizontal", 3, 2, 8, 2),
    Sketcher.Constraint("Horizontal", 2, 2, 9, 2),
    Sketcher.Constraint("Horizontal", 7, 2, 12, 2),
    Sketcher.Constraint("Horizontal", 6, 2, 13, 2),
    Sketcher.Constraint("Vertical", 1, 2, 4, 2),
    Sketcher.Constraint("Vertical", 3, 2, 6, 2),
    Sketcher.Constraint("Vertical", 9, 2, 12, 2),
    Sketcher.Constraint("Vertical", 11, 2, 14, 2),
    Sketcher.Constraint("Equal", 6, 8),
    Sketcher.Constraint("Equal", 3, 5),
    Sketcher.Constraint("DistanceY", 1, 1, 1, 2, 29.5),
    Sketcher.Constraint("DistanceY", 1, 2, -1, 1, 191.0),
    Sketcher.Constraint("DistanceY", 5, 2, -1, 1, 222.0),
    Sketcher.Constraint("DistanceX", 3, 2, 8, 2, 77.0),
    Sketcher.Constraint("DistanceX", 0, 1, 0, 2, 37.75),
    Sketcher.Constraint("DistanceX", -1, 1, 2, 2, 91.5),
])
pocket13 = doc.addObject("PartDesign::Pocket", "Pocket012")
body5.addObject(pocket13)
pocket13.Profile = sketch18
pocket13.Length = 25
doc.recompute()

fillet9 = doc.addObject("PartDesign::Fillet", "Fillet008")
body5.addObject(fillet9)
fillet9.Base = (pocket13, edges_at(pocket13, [
    (149.625, -191, 10),
    (168.5, -205.75, 10),
    (149.625, -220.5, 10),
    (130.75, -205.75, 10),
    (149.625, -222, 10),
    (168.5, -236.75, 10),
    (149.625, -251.5, 10),
    (130.75, -236.75, 10),
    (110.375, -222, 10),
    (129.25, -236.75, 10),
    (110.375, -251.5, 10),
    (91.5, -236.75, 10),
    (129.25, -205.75, 10),
    (110.375, -220.5, 10),
    (91.5, -205.75, 10),
    (110.375, -191, 10),
]))
fillet9.Radius = 4

doc.recompute()
